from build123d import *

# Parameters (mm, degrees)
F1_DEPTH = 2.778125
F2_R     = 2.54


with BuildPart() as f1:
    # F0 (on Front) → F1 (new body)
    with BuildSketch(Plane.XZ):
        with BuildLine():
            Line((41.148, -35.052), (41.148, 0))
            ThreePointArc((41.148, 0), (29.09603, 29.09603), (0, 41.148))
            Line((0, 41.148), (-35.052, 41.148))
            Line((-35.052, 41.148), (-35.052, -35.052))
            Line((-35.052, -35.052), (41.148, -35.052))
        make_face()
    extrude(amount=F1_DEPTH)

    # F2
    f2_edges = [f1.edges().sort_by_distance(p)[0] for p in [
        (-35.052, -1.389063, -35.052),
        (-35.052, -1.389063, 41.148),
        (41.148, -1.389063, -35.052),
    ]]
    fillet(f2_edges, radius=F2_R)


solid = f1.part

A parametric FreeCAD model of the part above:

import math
import FreeCAD as App
import Part
import Sketcher

V = App.Vector
Q = App.Units.Quantity


def edges_at(feature, points):
    """Names of the edges that pass closest to the given points."""
    edges = feature.Shape.Edges
    near = lambda p: min(range(len(edges)), key=lambda i: edges[i].distToShape(Part.Vertex(*p))[0])
    return sorted({f"Edge{near(p) + 1}" for p in points})

doc = App.newDocument("Part")
body = doc.addObject("PartDesign::Body", "Body")

sketch1 = body.newObject("Sketcher::SketchObject", "Sketch")
sketch1.AttachmentSupport = (doc.getObject("XZ_Plane"), [""])
sketch1.MapMode = "FlatFace"
sketch1.addGeometry(Part.LineSegment(V(41, -35, 0), V(41, 0, 0)), False)
sketch1.addGeometry(Part.ArcOfCircle(Part.Circle(V(0, 0, 0), V(0, 0, 1), 41), math.radians(0), math.radians(90)), False)
sketch1.addGeometry(Part.LineSegment(V(0, 41, 0), V(-35, 41, 0)), False)
sketch1.addGeometry(Part.LineSegment(V(-35, 41, 0), V(-35, -35, 0)), False)
sketch1.addGeometry(Part.LineSegment(V(-35, -35, 0), V(41, -35, 0)), False)
sketch1.addConstraint(Sketcher.Constraint("Tangent", 0, 2, 1, 1))
sketch1.addConstraint(Sketcher.Constraint("Tangent", 1, 2, 2, 1))
sketch1.addConstraint(Sketcher.Constraint("Coincident", 2, 2, 3, 1))
sketch1.addConstraint(Sketcher.Constraint("Coincident", 3, 2, 4, 1))
sketch1.addConstraint(Sketcher.Constraint("Coincident", 4, 2, 0, 1))
sketch1.addConstraint(Sketcher.Constraint("Vertical", 0))
sketch1.addConstraint(Sketcher.Constraint("Horizontal", 2))
sketch1.addConstraint(Sketcher.Constraint("Vertical", 3))
sketch1.addConstraint(Sketcher.Constraint("Horizontal", 4))
sketch1.addConstraint(Sketcher.Constraint("Coincident", 1, 3, -1, 1))
sketch1.addConstraint(Sketcher.Constraint("Equal", 2, 0))
sketch1.addConstraint(Sketcher.Constraint("DistanceX", 4, 1, 4, 2, Q("3 in")))
sketch1.addConstraint(Sketcher.Constraint("Radius", 1, Q("1.62 in")))
pad1 = body.newObject("PartDesign::Pad", "Pad")
pad1.Profile = sketch1
pad1.Length = Q("0.109375 in")
doc.recompute()

fillet = body.newObject("PartDesign::Fillet", "Fillet")
fillet.Base = (pad1, edges_at(pad1, [(-35.052, -1.389, -35.052), (-35.052, -1.389, 41.148), (41.148, -1.389, -35.052)]))
fillet.Radius = Q("0.1 in")

doc.recompute()
